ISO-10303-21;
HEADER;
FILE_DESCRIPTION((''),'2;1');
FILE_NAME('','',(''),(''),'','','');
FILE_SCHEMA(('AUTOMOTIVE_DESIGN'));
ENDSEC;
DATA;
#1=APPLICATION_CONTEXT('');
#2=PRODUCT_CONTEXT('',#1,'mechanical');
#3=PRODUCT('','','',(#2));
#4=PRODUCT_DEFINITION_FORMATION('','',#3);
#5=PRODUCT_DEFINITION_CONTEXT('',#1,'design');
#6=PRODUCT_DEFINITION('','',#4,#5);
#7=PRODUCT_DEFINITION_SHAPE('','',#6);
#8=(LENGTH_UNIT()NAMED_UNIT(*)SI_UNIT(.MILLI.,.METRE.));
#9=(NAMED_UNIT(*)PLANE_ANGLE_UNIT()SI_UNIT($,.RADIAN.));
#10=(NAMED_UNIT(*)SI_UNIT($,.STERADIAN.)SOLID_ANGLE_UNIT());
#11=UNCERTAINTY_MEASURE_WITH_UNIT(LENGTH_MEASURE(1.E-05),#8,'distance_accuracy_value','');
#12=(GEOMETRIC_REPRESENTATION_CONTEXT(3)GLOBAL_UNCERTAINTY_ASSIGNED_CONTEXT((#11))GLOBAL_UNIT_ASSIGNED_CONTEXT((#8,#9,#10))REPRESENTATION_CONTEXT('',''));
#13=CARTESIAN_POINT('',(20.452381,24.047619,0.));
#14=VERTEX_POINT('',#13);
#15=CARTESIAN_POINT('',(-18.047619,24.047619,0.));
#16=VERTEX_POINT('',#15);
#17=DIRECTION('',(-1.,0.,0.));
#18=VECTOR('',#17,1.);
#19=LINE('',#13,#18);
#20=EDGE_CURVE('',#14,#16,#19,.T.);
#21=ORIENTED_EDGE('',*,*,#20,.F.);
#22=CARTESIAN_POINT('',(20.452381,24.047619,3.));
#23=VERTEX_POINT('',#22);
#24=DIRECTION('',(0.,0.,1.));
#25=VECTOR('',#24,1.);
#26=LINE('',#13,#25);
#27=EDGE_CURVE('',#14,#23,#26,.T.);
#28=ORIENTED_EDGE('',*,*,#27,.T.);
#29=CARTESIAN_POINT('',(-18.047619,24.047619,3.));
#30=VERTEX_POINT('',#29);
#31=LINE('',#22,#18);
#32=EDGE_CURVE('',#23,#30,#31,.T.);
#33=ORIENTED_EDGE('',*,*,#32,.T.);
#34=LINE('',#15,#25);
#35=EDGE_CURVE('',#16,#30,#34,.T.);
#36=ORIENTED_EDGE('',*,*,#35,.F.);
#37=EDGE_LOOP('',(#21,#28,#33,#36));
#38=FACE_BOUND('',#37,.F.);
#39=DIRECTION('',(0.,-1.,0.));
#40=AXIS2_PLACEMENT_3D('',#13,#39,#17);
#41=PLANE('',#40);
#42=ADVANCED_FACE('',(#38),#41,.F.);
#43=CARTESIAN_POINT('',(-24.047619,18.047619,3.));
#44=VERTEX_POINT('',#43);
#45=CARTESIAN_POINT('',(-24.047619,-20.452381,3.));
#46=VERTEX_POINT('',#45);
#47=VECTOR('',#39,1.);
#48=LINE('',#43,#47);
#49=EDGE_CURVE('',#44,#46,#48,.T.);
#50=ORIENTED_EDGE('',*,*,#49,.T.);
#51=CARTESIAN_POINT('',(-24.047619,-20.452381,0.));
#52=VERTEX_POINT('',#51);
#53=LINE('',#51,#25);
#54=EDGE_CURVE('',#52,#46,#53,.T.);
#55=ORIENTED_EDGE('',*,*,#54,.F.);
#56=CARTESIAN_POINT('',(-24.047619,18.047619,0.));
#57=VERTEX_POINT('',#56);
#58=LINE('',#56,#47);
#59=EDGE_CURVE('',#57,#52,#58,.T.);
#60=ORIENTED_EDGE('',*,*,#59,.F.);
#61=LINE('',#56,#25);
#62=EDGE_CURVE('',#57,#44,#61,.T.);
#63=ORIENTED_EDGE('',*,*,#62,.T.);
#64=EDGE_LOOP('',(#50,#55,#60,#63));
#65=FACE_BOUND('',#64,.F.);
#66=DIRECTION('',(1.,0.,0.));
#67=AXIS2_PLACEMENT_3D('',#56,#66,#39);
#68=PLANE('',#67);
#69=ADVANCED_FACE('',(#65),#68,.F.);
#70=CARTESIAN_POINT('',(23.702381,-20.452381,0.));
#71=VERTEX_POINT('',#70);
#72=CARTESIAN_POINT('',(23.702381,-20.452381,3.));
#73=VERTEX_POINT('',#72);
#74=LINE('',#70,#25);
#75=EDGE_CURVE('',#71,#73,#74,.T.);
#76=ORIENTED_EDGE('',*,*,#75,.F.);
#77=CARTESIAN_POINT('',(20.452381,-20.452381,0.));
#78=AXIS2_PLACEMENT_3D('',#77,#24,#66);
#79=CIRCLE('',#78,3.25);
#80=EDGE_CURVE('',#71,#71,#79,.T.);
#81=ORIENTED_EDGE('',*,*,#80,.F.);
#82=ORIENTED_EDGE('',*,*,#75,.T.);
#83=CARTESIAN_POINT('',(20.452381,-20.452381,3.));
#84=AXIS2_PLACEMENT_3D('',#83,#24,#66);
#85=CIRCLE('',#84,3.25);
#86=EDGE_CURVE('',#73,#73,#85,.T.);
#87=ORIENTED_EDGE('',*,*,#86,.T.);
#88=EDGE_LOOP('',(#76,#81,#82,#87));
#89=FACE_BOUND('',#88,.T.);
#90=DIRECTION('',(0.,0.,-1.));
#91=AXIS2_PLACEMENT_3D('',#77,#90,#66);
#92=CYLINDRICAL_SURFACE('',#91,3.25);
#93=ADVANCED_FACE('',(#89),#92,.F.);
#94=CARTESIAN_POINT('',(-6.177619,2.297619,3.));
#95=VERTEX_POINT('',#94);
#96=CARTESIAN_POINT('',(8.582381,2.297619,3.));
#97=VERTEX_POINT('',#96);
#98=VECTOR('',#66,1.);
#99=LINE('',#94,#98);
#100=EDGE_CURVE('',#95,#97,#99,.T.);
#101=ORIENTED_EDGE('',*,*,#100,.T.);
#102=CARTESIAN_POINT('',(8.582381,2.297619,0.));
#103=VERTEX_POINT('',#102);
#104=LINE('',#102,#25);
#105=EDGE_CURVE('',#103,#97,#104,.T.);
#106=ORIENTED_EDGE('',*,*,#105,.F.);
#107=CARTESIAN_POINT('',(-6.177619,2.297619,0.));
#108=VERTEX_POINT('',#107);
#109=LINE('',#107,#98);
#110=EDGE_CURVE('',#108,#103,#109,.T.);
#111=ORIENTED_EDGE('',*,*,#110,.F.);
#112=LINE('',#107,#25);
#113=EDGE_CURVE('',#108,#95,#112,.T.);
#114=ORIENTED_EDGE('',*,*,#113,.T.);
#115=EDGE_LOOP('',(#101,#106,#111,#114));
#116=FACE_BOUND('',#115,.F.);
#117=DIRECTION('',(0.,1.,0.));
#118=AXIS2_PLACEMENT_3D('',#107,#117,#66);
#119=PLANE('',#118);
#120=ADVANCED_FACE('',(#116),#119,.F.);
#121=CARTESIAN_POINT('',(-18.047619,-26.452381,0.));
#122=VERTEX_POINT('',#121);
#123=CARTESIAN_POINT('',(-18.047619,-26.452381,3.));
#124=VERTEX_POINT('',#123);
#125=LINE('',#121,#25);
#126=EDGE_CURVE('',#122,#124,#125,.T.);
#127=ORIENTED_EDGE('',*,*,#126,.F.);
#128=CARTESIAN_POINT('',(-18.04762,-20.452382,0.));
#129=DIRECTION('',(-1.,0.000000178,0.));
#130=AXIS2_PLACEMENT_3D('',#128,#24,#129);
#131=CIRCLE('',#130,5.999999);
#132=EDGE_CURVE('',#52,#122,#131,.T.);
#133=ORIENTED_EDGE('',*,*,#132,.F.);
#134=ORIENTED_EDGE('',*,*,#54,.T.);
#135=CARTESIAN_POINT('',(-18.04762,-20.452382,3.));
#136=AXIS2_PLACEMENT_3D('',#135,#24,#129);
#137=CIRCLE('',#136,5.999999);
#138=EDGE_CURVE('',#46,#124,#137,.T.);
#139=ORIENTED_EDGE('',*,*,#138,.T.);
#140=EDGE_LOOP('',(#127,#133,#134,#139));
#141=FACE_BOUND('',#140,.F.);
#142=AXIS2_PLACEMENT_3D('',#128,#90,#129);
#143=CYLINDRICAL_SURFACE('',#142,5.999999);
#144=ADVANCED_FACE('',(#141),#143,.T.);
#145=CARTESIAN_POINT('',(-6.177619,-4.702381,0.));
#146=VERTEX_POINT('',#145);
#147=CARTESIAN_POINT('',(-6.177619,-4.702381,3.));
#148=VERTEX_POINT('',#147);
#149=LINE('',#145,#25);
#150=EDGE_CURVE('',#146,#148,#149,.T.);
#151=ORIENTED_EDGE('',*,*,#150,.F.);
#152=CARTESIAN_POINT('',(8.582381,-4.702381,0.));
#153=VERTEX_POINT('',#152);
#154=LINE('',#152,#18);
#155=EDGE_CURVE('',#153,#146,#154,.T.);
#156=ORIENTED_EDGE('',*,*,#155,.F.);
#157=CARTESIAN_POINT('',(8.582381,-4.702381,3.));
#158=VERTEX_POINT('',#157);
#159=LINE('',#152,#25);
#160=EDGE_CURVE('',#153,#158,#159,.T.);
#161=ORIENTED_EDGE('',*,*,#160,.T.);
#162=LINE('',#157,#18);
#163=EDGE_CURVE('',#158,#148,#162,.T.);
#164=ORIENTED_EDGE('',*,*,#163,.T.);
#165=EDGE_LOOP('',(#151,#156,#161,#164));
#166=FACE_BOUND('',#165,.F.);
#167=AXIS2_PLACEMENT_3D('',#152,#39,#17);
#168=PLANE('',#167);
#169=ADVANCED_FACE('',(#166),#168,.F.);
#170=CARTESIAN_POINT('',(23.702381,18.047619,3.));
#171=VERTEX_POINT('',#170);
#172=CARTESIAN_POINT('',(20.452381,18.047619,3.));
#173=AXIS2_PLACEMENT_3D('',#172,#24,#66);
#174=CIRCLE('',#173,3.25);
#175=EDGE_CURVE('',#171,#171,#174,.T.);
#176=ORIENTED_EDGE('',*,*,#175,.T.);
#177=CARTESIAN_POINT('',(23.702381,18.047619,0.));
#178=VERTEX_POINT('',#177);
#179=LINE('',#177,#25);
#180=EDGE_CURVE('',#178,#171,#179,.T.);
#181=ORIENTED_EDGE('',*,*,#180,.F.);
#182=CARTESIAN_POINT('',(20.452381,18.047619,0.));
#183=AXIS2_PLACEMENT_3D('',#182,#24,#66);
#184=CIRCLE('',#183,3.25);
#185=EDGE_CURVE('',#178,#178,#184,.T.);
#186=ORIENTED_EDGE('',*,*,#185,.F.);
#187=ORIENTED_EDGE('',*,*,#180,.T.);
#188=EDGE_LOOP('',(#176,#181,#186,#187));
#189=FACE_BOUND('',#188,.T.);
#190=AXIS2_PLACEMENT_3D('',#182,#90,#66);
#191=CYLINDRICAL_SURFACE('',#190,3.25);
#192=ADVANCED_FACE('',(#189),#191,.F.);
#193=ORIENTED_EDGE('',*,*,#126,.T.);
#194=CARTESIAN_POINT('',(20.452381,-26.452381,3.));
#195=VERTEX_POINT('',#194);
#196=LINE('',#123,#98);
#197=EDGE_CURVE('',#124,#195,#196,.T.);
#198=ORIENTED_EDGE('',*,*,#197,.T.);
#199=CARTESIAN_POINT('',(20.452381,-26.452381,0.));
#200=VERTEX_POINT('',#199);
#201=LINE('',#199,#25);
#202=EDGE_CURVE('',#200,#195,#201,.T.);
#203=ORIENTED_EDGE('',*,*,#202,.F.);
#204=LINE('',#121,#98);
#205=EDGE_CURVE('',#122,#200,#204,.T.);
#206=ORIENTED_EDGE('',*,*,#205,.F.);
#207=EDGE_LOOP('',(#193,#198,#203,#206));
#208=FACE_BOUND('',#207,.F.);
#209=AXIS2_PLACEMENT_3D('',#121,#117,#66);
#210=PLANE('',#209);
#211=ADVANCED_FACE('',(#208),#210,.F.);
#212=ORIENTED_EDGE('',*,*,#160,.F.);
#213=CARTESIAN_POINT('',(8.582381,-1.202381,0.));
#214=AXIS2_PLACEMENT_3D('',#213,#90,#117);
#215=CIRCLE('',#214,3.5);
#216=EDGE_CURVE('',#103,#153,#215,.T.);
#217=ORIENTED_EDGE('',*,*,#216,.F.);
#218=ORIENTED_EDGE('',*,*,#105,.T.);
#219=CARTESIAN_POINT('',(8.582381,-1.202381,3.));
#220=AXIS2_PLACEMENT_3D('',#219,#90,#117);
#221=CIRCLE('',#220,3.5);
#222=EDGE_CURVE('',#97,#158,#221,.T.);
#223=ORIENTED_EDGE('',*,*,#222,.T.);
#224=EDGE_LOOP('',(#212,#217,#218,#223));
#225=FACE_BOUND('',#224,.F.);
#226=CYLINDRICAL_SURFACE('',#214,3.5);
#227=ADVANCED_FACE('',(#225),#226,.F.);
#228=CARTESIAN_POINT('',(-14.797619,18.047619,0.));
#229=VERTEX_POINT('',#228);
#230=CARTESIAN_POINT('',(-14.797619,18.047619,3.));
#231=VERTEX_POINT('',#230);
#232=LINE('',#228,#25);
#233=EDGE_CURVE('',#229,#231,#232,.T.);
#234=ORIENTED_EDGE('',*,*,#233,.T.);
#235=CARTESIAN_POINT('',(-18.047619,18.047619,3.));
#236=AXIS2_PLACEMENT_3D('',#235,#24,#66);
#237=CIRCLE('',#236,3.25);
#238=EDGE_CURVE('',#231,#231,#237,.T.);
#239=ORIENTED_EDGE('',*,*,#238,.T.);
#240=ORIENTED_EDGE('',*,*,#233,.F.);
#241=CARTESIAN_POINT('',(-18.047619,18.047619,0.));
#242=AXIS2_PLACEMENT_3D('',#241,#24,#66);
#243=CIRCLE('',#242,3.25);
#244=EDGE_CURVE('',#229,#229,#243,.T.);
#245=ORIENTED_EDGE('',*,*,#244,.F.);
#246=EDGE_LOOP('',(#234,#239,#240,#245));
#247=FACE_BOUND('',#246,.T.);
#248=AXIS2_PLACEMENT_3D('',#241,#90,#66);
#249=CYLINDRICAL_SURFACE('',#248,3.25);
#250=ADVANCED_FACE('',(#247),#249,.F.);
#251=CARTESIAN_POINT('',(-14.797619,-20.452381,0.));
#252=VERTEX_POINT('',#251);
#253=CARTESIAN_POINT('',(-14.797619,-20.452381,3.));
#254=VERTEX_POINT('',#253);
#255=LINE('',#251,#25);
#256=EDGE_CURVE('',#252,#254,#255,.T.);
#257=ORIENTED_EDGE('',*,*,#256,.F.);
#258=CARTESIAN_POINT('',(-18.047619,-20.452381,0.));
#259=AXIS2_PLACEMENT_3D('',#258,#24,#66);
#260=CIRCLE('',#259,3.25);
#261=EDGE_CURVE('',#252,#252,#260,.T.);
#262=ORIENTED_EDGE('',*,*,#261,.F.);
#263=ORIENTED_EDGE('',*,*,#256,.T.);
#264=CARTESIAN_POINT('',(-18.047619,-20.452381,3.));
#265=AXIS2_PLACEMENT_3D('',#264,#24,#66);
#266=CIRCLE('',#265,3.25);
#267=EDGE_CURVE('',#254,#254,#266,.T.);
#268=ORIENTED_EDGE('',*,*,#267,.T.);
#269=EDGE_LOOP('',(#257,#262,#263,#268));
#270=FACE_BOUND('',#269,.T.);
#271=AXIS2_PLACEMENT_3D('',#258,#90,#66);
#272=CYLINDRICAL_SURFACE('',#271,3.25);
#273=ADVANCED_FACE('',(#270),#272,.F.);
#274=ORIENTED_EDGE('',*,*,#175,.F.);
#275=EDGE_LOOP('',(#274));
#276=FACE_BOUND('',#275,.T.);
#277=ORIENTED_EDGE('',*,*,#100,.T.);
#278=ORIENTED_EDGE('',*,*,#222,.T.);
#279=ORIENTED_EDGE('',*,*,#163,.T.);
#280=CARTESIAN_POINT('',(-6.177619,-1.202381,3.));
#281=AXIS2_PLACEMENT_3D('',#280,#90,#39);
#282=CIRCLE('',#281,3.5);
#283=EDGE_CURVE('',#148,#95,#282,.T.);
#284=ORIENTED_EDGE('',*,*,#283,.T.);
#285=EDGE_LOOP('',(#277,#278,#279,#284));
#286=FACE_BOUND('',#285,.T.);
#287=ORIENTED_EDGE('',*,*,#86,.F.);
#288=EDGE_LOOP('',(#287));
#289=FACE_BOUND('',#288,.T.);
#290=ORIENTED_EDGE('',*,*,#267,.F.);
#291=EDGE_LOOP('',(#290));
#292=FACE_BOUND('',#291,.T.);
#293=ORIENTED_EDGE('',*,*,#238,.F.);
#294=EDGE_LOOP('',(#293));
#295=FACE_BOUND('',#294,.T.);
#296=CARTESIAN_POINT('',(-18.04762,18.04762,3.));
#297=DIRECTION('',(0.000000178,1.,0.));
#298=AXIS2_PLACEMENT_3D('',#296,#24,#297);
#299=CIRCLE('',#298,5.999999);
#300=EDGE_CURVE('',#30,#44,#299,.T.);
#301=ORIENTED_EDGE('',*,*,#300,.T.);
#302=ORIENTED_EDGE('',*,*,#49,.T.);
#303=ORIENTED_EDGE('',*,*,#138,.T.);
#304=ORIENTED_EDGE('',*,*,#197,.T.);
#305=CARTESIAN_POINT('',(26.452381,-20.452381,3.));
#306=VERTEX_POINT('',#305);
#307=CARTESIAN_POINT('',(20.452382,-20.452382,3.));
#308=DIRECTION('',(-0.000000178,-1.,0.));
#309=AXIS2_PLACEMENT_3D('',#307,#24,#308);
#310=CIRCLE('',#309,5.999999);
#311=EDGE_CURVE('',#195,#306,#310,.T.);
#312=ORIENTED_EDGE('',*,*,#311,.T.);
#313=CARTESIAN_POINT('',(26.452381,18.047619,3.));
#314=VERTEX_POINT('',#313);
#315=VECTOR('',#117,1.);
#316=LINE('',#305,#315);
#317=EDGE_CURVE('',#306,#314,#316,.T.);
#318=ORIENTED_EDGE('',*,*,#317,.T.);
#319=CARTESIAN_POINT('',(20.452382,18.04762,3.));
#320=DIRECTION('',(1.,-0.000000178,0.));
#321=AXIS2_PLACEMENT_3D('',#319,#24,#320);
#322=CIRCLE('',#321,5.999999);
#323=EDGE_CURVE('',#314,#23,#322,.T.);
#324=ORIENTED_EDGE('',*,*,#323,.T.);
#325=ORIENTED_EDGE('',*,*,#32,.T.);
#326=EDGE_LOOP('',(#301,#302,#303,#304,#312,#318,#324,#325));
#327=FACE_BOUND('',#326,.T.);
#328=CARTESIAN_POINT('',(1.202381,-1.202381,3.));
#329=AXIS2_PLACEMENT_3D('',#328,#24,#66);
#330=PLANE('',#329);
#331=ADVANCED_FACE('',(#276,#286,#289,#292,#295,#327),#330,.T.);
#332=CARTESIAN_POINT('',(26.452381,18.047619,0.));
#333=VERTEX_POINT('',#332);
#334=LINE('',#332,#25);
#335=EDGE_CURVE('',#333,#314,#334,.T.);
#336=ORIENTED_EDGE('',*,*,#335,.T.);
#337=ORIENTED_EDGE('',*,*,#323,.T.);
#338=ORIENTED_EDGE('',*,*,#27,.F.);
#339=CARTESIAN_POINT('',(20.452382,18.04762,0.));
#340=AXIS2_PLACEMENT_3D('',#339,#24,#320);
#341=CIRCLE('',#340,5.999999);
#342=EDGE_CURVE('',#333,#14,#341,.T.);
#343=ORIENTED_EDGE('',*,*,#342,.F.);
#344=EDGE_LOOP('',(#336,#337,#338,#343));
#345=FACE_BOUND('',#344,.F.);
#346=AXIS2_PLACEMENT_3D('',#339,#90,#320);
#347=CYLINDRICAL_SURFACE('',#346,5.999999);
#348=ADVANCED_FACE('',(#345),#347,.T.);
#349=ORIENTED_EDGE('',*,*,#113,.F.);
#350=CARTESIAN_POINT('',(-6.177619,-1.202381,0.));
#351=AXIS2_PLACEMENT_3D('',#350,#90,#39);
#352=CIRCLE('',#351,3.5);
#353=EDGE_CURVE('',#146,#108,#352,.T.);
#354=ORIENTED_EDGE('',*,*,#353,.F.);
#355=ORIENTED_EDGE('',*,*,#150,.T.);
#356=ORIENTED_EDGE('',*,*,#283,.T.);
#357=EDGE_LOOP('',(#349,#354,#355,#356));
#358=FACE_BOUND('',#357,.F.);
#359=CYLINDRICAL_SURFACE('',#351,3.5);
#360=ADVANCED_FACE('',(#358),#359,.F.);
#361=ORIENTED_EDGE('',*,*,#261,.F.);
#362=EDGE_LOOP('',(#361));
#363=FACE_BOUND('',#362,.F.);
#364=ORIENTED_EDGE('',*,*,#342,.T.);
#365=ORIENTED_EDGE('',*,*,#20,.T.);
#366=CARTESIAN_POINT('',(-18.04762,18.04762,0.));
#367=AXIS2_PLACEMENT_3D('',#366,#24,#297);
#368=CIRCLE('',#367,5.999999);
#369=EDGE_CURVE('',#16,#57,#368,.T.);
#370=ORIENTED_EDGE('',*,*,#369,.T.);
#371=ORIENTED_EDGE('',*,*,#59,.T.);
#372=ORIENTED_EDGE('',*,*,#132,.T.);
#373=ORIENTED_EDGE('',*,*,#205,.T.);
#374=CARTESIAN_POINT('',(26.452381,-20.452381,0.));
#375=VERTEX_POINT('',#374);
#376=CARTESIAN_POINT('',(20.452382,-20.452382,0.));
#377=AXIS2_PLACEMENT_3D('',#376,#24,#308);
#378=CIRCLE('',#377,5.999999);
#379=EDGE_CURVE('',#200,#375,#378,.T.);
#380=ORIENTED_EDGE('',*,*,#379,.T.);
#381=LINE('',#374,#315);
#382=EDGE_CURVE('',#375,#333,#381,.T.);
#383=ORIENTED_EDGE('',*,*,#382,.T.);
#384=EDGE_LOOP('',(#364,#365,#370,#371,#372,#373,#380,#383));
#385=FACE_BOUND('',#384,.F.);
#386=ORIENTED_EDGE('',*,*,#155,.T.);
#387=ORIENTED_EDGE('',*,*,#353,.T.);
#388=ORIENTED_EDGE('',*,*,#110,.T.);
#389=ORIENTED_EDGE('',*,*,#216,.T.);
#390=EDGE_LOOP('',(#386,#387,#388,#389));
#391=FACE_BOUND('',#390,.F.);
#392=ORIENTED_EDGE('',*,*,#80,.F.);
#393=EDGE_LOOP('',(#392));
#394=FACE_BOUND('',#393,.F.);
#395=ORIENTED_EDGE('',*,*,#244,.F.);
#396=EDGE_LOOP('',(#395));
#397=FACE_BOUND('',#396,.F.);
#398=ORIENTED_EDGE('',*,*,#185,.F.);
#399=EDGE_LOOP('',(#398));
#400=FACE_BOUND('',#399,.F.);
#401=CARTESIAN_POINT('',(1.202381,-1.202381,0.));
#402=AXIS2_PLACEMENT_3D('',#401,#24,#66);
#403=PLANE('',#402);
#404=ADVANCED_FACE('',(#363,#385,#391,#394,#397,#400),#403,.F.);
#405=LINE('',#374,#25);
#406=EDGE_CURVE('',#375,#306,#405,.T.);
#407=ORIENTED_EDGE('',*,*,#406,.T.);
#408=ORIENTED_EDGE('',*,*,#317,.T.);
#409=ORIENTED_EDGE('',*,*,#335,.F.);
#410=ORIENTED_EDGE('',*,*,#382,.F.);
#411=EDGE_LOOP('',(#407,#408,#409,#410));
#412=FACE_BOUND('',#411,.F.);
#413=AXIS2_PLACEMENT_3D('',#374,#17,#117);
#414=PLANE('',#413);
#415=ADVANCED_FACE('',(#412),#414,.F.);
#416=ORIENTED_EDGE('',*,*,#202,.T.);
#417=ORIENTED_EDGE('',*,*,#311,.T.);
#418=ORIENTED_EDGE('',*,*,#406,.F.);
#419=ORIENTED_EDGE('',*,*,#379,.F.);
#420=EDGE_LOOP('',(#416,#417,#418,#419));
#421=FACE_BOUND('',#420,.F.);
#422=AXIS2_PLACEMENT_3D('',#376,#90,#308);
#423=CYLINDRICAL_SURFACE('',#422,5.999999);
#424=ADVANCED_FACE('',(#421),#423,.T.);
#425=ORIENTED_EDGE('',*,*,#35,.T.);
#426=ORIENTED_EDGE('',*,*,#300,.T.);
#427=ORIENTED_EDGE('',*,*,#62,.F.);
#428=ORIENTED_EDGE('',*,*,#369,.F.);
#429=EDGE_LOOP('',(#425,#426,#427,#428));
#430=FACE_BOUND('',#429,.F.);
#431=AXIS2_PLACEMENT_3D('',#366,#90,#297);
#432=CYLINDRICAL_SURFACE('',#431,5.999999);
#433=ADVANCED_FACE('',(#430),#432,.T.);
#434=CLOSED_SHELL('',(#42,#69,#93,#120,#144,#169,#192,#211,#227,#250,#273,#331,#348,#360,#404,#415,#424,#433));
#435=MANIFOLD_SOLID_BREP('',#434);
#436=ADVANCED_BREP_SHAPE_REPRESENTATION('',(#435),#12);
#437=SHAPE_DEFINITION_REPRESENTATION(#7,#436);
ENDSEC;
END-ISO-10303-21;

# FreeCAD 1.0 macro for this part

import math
import FreeCAD as App
import Part
import Sketcher

doc = App.newDocument("Part")
body = doc.addObject("PartDesign::Body", "Body")

sketch1 = body.newObject("Sketcher::SketchObject", "Sketch")
sketch1.AttachmentSupport = (doc.getObject("XY_Plane"), [""])
sketch1.MapMode = "FlatFace"
sketch1.addGeometry(Part.LineSegment(App.Vector(20.452381, 24.047619, 0), App.Vector(-18.047619, 24.047619, 0)), False)
sketch1.addGeometry(Part.ArcOfCircle(Part.Circle(App.Vector(-18.04762, 18.04762, 0), App.Vector(0, 0, 1), 5.999999), math.radians(89.99999), math.radians(180.00001)), False)
sketch1.addGeometry(Part.LineSegment(App.Vector(-24.047619, 18.047619, 0), App.Vector(-24.047619, -20.452381, 0)), False)
sketch1.addGeometry(Part.ArcOfCircle(Part.Circle(App.Vector(-18.04762, -20.452382, 0), App.Vector(0, 0, 1), 5.999999), math.radians(179.99999), math.radians(270.00001)), False)
sketch1.addGeometry(Part.LineSegment(App.Vector(-18.047619, -26.452381, 0), App.Vector(20.452381, -26.452381, 0)), False)
sketch1.addGeometry(Part.ArcOfCircle(Part.Circle(App.Vector(20.452382, -20.452382, 0), App.Vector(0, 0, 1), 5.999999), math.radians(-90.00001), math.radians(0.00001)), False)
sketch1.addGeometry(Part.LineSegment(App.Vector(26.452381, -20.452381, 0), App.Vector(26.452381, 18.047619, 0)), False)
sketch1.addGeometry(Part.ArcOfCircle(Part.Circle(App.Vector(20.452382, 18.04762, 0), App.Vector(0, 0, 1), 5.999999), math.radians(-0.00001), math.radians(90.00001)), False)
sketch1.addGeometry(Part.Circle(App.Vector(-18.047619, -20.452381, 0), App.Vector(0, 0, 1), 3.25), False)
sketch1.addGeometry(Part.Circle(App.Vector(20.452381, -20.452381, 0), App.Vector(0, 0, 1), 3.25), False)
sketch1.addGeometry(Part.Circle(App.Vector(-18.047619, 18.047619, 0), App.Vector(0, 0, 1), 3.25), False)
sketch1.addGeometry(Part.LineSegment(App.Vector(8.582381, -4.702381, 0), App.Vector(-6.177619, -4.702381, 0)), False)
sketch1.addGeometry(Part.ArcOfCircle(Part.Circle(App.Vector(-6.177619, -1.202381, 0), App.Vector(0, 0, 1), 3.5), math.radians(90), math.radians(270)), False)
sketch1.addGeometry(Part.LineSegment(App.Vector(-6.177619, 2.297619, 0), App.Vector(8.582381, 2.297619, 0)), False)
sketch1.addGeometry(Part.ArcOfCircle(Part.Circle(App.Vector(8.582381, -1.202381, 0), App.Vector(0, 0, 1), 3.5), math.radians(-90), math.radians(90)), False)
sketch1.addGeometry(Part.Circle(App.Vector(20.452381, 18.047619, 0), App.Vector(0, 0, 1), 3.25), False)
sketch1.addConstraint(Sketcher.Constraint("Tangent", 0, 2, 1, 1))
sketch1.addConstraint(Sketcher.Constraint("Tangent", 1, 2, 2, 1))
sketch1.addConstraint(Sketcher.Constraint("Tangent", 2, 2, 3, 1))
sketch1.addConstraint(Sketcher.Constraint("Tangent", 3, 2, 4, 1))
sketch1.addConstraint(Sketcher.Constraint("Tangent", 4, 2, 5, 1))
sketch1.addConstraint(Sketcher.Constraint("Tangent", 5, 2, 6, 1))
sketch1.addConstraint(Sketcher.Constraint("Tangent", 6, 2, 7, 1))
sketch1.addConstraint(Sketcher.Constraint("Tangent", 7, 2, 0, 1))
sketch1.addConstraint(Sketcher.Constraint("Tangent", 11, 2, 12, 2))
sketch1.addConstraint(Sketcher.Constraint("Tangent", 12, 1, 13, 1))
sketch1.addConstraint(Sketcher.Constraint("Tangent", 13, 2, 14, 2))
sketch1.addConstraint(Sketcher.Constraint("Tangent", 14, 1, 11, 1))
sketch1.addConstraint(Sketcher.Constraint("Horizontal", 0))
sketch1.addConstraint(Sketcher.Constraint("Vertical", 2))
sketch1.addConstraint(Sketcher.Constraint("Horizontal", 4))
sketch1.addConstraint(Sketcher.Constraint("Vertical", 6))
sketch1.addConstraint(Sketcher.Constraint("Horizontal", 11))
sketch1.addConstraint(Sketcher.Constraint("Horizontal", 13))
sketch1.addConstraint(Sketcher.Constraint("Coincident", 8, 3, 3, 3))
sketch1.addConstraint(Sketcher.Constraint("Coincident", 9, 3, 5, 3))
sketch1.addConstraint(Sketcher.Constraint("Coincident", 10, 3, 1, 3))
sketch1.addConstraint(Sketcher.Constraint("Coincident", 15, 3, 7, 3))
sketch1.addConstraint(Sketcher.Constraint("Equal", 1, 3))
sketch1.addConstraint(Sketcher.Constraint("Equal", 3, 5))
sketch1.addConstraint(Sketcher.Constraint("Equal", 5, 7))
sketch1.addConstraint(Sketcher.Constraint("Equal", 8, 9))
sketch1.addConstraint(Sketcher.Constraint("Equal", 9, 10))
sketch1.addConstraint(Sketcher.Constraint("Equal", 10, 15))
sketch1.addConstraint(Sketcher.Constraint("Equal", 4, 2))
sketch1.addConstraint(Sketcher.Constraint("Radius", 1, 5.999999))
sketch1.addConstraint(Sketcher.Constraint("Diameter", 8, 6.5))
sketch1.addConstraint(Sketcher.Constraint("Radius", 12, 3.5))
sketch1.addConstraint(Sketcher.Constraint("DistanceX", 0, 2, 0, 1, 38.5))
sketch1.addConstraint(Sketcher.Constraint("DistanceX", 11, 2, 11, 1, 14.76))
sketch1.addConstraint(Sketcher.Constraint("DistanceX", 8, 3, 12, 3, 11.87))
sketch1.addConstraint(Sketcher.Constraint("DistanceY", 8, 3, 12, 3, 19.25))
sketch1.addConstraint(Sketcher.Constraint("DistanceX", 1, 3, -1, 1, 18.04762))
sketch1.addConstraint(Sketcher.Constraint("DistanceY", -1, 1, 1, 3, 18.04762))
pad1 = body.newObject("PartDesign::Pad", "Pad")
pad1.Profile = sketch1
pad1.Length = 3

doc.recompute()
